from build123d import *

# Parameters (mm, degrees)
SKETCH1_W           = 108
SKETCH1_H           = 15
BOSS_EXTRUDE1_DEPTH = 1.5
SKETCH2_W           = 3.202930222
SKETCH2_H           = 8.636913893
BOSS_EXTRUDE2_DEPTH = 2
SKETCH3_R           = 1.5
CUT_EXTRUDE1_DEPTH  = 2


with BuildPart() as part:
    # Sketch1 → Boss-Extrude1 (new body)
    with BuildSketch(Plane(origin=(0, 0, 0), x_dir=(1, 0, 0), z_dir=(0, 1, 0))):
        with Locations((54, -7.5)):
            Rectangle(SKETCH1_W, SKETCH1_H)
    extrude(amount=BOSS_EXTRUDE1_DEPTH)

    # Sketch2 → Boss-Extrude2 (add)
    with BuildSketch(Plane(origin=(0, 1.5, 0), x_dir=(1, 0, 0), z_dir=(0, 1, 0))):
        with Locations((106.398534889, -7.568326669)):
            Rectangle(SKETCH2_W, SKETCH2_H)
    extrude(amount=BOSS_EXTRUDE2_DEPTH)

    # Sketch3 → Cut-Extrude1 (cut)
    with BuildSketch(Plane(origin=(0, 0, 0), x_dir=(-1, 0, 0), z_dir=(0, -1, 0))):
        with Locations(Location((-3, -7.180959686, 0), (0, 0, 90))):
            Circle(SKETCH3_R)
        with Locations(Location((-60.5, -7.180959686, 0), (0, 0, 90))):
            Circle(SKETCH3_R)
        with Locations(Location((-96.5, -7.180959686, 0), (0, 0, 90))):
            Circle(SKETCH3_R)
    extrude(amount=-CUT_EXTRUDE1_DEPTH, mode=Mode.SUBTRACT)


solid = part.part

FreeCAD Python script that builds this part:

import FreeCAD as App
import Part
import Sketcher
from FreeCAD import Vector

doc = App.newDocument("Part")
body = doc.addObject("PartDesign::Body", "Body")

sketch1 = body.newObject("Sketcher::SketchObject", "Sketch")
sketch1.AttachmentSupport = (doc.getObject("XZ_Plane"), [""])
sketch1.MapMode = "FlatFace"
sketch1.addGeometry(Part.LineSegment(Vector(0, 0, 0), Vector(0, 15, 0)), False)
sketch1.addGeometry(Part.LineSegment(Vector(0, 15, 0), Vector(108, 15, 0)), False)
sketch1.addGeometry(Part.LineSegment(Vector(108, 15, 0), Vector(108, 0, 0)), False)
sketch1.addGeometry(Part.LineSegment(Vector(108, 0, 0), Vector(0, 0, 0)), False)
sketch1.addConstraint(Sketcher.Constraint("Coincident", 0, 2, 1, 1))
sketch1.addConstraint(Sketcher.Constraint("Coincident", 1, 2, 2, 1))
sketch1.addConstraint(Sketcher.Constraint("Coincident", 2, 2, 3, 1))
sketch1.addConstraint(Sketcher.Constraint("Coincident", 3, 2, 0, 1))
sketch1.addConstraint(Sketcher.Constraint("Vertical", 0))
sketch1.addConstraint(Sketcher.Constraint("Horizontal", 1))
sketch1.addConstraint(Sketcher.Constraint("Vertical", 2))
sketch1.addConstraint(Sketcher.Constraint("Horizontal", 3))
sketch1.addConstraint(Sketcher.Constraint("Coincident", 3, 2, -1, 1))
sketch1.addConstraint(Sketcher.Constraint("DistanceX", 1, 1, 1, 2, 108.0))
sketch1.addConstraint(Sketcher.Constraint("DistanceY", 0, 1, 0, 2, 15.0))
pad1 = body.newObject("PartDesign::Pad", "Pad")
pad1.Profile = sketch1
pad1.Length = 1.5
pad1.Reversed = True

sketch2 = body.newObject("Sketcher::SketchObject", "Sketch001")
sketch2.AttachmentSupport = (doc.getObject("XZ_Plane"), [""])
sketch2.MapMode = "FlatFace"
sketch2.AttachmentOffset = App.Placement(Vector(0, 0, -1.5), App.Rotation())
sketch2.addGeometry(Part.LineSegment(Vector(104.8, 3.2, 0), Vector(104.8, 11.9, 0)), False)
sketch2.addGeometry(Part.LineSegment(Vector(104.8, 11.9, 0), Vector(108, 11.9, 0)), False)
sketch2.addGeometry(Part.LineSegment(Vector(108, 11.9, 0), Vector(108, 3.2, 0)), False)
sketch2.addGeometry(Part.LineSegment(Vector(108, 3.2, 0), Vector(104.8, 3.2, 0)), False)
sketch2.addConstraint(Sketcher.Constraint("Coincident", 0, 2, 1, 1))
sketch2.addConstraint(Sketcher.Constraint("Coincident", 1, 2, 2, 1))
sketch2.addConstraint(Sketcher.Constraint("Coincident", 2, 2, 3, 1))
sketch2.addConstraint(Sketcher.Constraint("Coincident", 3, 2, 0, 1))
sketch2.addConstraint(Sketcher.Constraint("Vertical", 0))
sketch2.addConstraint(Sketcher.Constraint("Horizontal", 1))
sketch2.addConstraint(Sketcher.Constraint("Vertical", 2))
sketch2.addConstraint(Sketcher.Constraint("Horizontal", 3))
sketch2.addConstraint(Sketcher.Constraint("DistanceX", -1, 1, 1, 2, 108.0))
sketch2.addConstraint(Sketcher.Constraint("DistanceX", 1, 1, 1, 2, 3.20293))
sketch2.addConstraint(Sketcher.Constraint("DistanceY", 0, 1, 0, 2, 8.636914))
sketch2.addConstraint(Sketcher.Constraint("DistanceY", -1, 1, 2, 2, 3.24987))
pad2 = body.newObject("PartDesign::Pad", "Pad001")
pad2.Profile = sketch2
pad2.Length = 2
pad2.Reversed = True

sketch3 = body.newObject("Sketcher::SketchObject", "Sketch002")
sketch3.AttachmentSupport = (doc.getObject("XZ_Plane"), [""])
sketch3.MapMode = "FlatFace"
sketch3.addGeometry(Part.Circle(Vector(3, 7.2, 0), Vector(0, 0, 1), 1.5), False)
sketch3.addGeometry(Part.Circle(Vector(60.5, 7.2, 0), Vector(0, 0, 1), 1.5), False)
sketch3.addGeometry(Part.Circle(Vector(96.5, 7.2, 0), Vector(0, 0, 1), 1.5), False)
sketch3.addConstraint(Sketcher.Constraint("Equal", 0, 1))
sketch3.addConstraint(Sketcher.Constraint("Equal", 1, 2))
sketch3.addConstraint(Sketcher.Constraint("Horizontal", 0, 3, 1, 3))
sketch3.addConstraint(Sketcher.Constraint("Horizontal", 1, 3, 2, 3))
sketch3.addConstraint(Sketcher.Constraint("Diameter", 0, 3.0))
sketch3.addConstraint(Sketcher.Constraint("DistanceX", -1, 1, 0, 3, 3.0))
sketch3.addConstraint(Sketcher.Constraint("DistanceX", 1, 3, 2, 3, 36.0))
sketch3.addConstraint(Sketcher.Constraint("DistanceX", -1, 1, 1, 3, 60.5))
sketch3.addConstraint(Sketcher.Constraint("DistanceY", -1, 1, 0, 3, 7.18096))
pocket1 = body.newObject("PartDesign::Pocket", "Pocket")
pocket1.Profile = sketch3
pocket1.Length = 2

doc.recompute()
